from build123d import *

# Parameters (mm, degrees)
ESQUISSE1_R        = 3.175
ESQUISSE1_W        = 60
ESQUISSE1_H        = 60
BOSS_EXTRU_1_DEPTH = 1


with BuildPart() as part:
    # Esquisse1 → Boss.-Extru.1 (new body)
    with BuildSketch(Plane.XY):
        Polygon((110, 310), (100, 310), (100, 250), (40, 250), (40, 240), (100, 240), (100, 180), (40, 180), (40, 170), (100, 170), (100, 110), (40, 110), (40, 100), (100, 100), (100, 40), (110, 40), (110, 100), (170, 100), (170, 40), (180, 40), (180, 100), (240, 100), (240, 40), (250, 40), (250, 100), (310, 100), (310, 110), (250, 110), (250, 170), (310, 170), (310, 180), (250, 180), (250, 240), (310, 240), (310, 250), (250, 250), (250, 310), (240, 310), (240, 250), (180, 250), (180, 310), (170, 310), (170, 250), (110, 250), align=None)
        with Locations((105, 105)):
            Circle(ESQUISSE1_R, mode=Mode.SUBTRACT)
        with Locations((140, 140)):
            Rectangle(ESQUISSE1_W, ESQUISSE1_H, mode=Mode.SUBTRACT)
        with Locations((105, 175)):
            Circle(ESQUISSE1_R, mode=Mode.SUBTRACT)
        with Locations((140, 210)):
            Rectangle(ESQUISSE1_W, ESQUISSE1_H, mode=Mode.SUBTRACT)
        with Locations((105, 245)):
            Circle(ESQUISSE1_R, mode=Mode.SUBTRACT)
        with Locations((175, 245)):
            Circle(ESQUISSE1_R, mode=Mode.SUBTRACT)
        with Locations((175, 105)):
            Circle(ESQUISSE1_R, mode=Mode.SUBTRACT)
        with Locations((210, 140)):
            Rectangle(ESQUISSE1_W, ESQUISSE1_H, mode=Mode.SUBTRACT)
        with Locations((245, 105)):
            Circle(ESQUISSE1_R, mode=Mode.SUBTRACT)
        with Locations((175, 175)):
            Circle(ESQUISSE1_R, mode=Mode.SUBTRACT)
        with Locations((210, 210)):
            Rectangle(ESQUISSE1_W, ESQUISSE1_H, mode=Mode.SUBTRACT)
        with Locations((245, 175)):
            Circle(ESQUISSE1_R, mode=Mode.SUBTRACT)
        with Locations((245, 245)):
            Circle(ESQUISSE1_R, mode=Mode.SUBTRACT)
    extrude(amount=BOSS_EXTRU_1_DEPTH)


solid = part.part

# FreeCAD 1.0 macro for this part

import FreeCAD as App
import Part
import Sketcher

V = App.Vector


def add_polygon(sketch, points):
    """Adds a closed chain of lines whose ends are joined by coincident constraints."""
    first, n = sketch.GeometryCount, len(points)
    for a, b in zip(points, points[1:] + points[:1]):
        sketch.addGeometry(Part.LineSegment(App.Vector(*a, 0), App.Vector(*b, 0)), False)
    for i in range(n):
        sketch.addConstraint(Sketcher.Constraint("Coincident", first + i, 2, first + (i + 1) % n, 1))

doc = App.newDocument("Part")
body = doc.addObject("PartDesign::Body", "Body")

# Sketch on XY plane
sketch1 = body.newObject("Sketcher::SketchObject", "Sketch")
sketch1.AttachmentSupport = (doc.getObject("XY_Plane"), [""])
sketch1.MapMode = "FlatFace"
add_polygon(sketch1, [(110, 310), (100, 310), (100, 250), (40, 250), (40, 240), (100, 240), (100, 180), (40, 180), (40, 170), (100, 170), (100, 110), (40, 110), (40, 100), (100, 100), (100, 40), (110, 40), (110, 100), (170, 100), (170, 40), (180, 40), (180, 100), (240, 100), (240, 40), (250, 40), (250, 100), (310, 100), (310, 110), (250, 110), (250, 170), (310, 170), (310, 180), (250, 180), (250, 240), (310, 240), (310, 250), (250, 250), (250, 310), (240, 310), (240, 250), (180, 250), (180, 310), (170, 310), (170, 250), (110, 250)])  # lines 0-43
sketch1.addGeometry(Part.Circle(V(105, 105, 0), V(0, 0, 1), 3.175), False)  # 44
sketch1.addGeometry(Part.Circle(V(175, 105, 0), V(0, 0, 1), 3.175), False)  # 45
add_polygon(sketch1, [(170, 110), (110, 110), (110, 170), (170, 170)])  # lines 46-49
sketch1.addGeometry(Part.Circle(V(245, 105, 0), V(0, 0, 1), 3.175), False)  # 50
add_polygon(sketch1, [(240, 110), (180, 110), (180, 170), (240, 170)])  # lines 51-54
sketch1.addGeometry(Part.Circle(V(105, 175, 0), V(0, 0, 1), 3.175), False)  # 55
sketch1.addGeometry(Part.Circle(V(175, 175, 0), V(0, 0, 1), 3.175), False)  # 56
add_polygon(sketch1, [(170, 180), (110, 180), (110, 240), (170, 240)])  # lines 57-60
sketch1.addGeometry(Part.Circle(V(105, 245, 0), V(0, 0, 1), 3.175), False)  # 61
sketch1.addGeometry(Part.Circle(V(175, 245, 0), V(0, 0, 1), 3.175), False)  # 62
add_polygon(sketch1, [(240, 180), (180, 180), (180, 240), (240, 240)])  # lines 63-66
sketch1.addGeometry(Part.Circle(V(245, 175, 0), V(0, 0, 1), 3.175), False)  # 67
sketch1.addGeometry(Part.Circle(V(245, 245, 0), V(0, 0, 1), 3.175), False)  # 68
sketch1.addConstraint(Sketcher.Constraint("Horizontal", 0))
sketch1.addConstraint(Sketcher.Constraint("Vertical", 1))
sketch1.addConstraint(Sketcher.Constraint("Horizontal", 2))
sketch1.addConstraint(Sketcher.Constraint("Vertical", 3))
sketch1.addConstraint(Sketcher.Constraint("Horizontal", 4))
sketch1.addConstraint(Sketcher.Constraint("Vertical", 5))
sketch1.addConstraint(Sketcher.Constraint("Horizontal", 6))
sketch1.addConstraint(Sketcher.Constraint("Vertical", 7))
sketch1.addConstraint(Sketcher.Constraint("Horizontal", 8))
sketch1.addConstraint(Sketcher.Constraint("Vertical", 9))
sketch1.addConstraint(Sketcher.Constraint("Horizontal", 10))
sketch1.addConstraint(Sketcher.Constraint("Vertical", 11))
sketch1.addConstraint(Sketcher.Constraint("Horizontal", 12))
sketch1.addConstraint(Sketcher.Constraint("Vertical", 13))
sketch1.addConstraint(Sketcher.Constraint("Horizontal", 14))
sketch1.addConstraint(Sketcher.Constraint("Vertical", 15))
sketch1.addConstraint(Sketcher.Constraint("Horizontal", 16))
sketch1.addConstraint(Sketcher.Constraint("Vertical", 17))
sketch1.addConstraint(Sketcher.Constraint("Horizontal", 18))
sketch1.addConstraint(Sketcher.Constraint("Vertical", 19))
sketch1.addConstraint(Sketcher.Constraint("Horizontal", 20))
sketch1.addConstraint(Sketcher.Constraint("Vertical", 21))
sketch1.addConstraint(Sketcher.Constraint("Horizontal", 22))
sketch1.addConstraint(Sketcher.Constraint("Vertical", 23))
sketch1.addConstraint(Sketcher.Constraint("Horizontal", 24))
sketch1.addConstraint(Sketcher.Constraint("Vertical", 25))
sketch1.addConstraint(Sketcher.Constraint("Horizontal", 26))
sketch1.addConstraint(Sketcher.Constraint("Vertical", 27))
sketch1.addConstraint(Sketcher.Constraint("Horizontal", 28))
sketch1.addConstraint(Sketcher.Constraint("Vertical", 29))
sketch1.addConstraint(Sketcher.Constraint("Horizontal", 30))
sketch1.addConstraint(Sketcher.Constraint("Vertical", 31))
sketch1.addConstraint(Sketcher.Constraint("Horizontal", 32))
sketch1.addConstraint(Sketcher.Constraint("Vertical", 33))
sketch1.addConstraint(Sketcher.Constraint("Horizontal", 34))
sketch1.addConstraint(Sketcher.Constraint("Vertical", 35))
sketch1.addConstraint(Sketcher.Constraint("Horizontal", 36))
sketch1.addConstraint(Sketcher.Constraint("Vertical", 37))
sketch1.addConstraint(Sketcher.Constraint("Horizontal", 38))
sketch1.addConstraint(Sketcher.Constraint("Vertical", 39))
sketch1.addConstraint(Sketcher.Constraint("Horizontal", 40))
sketch1.addConstraint(Sketcher.Constraint("Vertical", 41))
sketch1.addConstraint(Sketcher.Constraint("Horizontal", 42))
sketch1.addConstraint(Sketcher.Constraint("Vertical", 43))
sketch1.addConstraint(Sketcher.Constraint("Horizontal", 46))
sketch1.addConstraint(Sketcher.Constraint("Vertical", 47))
sketch1.addConstraint(Sketcher.Constraint("Horizontal", 48))
sketch1.addConstraint(Sketcher.Constraint("Vertical", 49))
sketch1.addConstraint(Sketcher.Constraint("Horizontal", 51))
sketch1.addConstraint(Sketcher.Constraint("Vertical", 52))
sketch1.addConstraint(Sketcher.Constraint("Horizontal", 53))
sketch1.addConstraint(Sketcher.Constraint("Vertical", 54))
sketch1.addConstraint(Sketcher.Constraint("Horizontal", 57))
sketch1.addConstraint(Sketcher.Constraint("Vertical", 58))
sketch1.addConstraint(Sketcher.Constraint("Horizontal", 59))
sketch1.addConstraint(Sketcher.Constraint("Vertical", 60))
sketch1.addConstraint(Sketcher.Constraint("Horizontal", 63))
sketch1.addConstraint(Sketcher.Constraint("Vertical", 64))
sketch1.addConstraint(Sketcher.Constraint("Horizontal", 65))
sketch1.addConstraint(Sketcher.Constraint("Vertical", 66))
sketch1.addConstraint(Sketcher.Constraint("Equal", 44, 45))
sketch1.addConstraint(Sketcher.Constraint("Equal", 45, 50))
sketch1.addConstraint(Sketcher.Constraint("Equal", 50, 55))
sketch1.addConstraint(Sketcher.Constraint("Equal", 55, 56))
sketch1.addConstraint(Sketcher.Constraint("Equal", 56, 61))
sketch1.addConstraint(Sketcher.Constraint("Equal", 61, 62))
sketch1.addConstraint(Sketcher.Constraint("Equal", 62, 67))
sketch1.addConstraint(Sketcher.Constraint("Equal", 67, 68))
sketch1.addConstraint(Sketcher.Constraint("Horizontal", 44, 3, 45, 3))
sketch1.addConstraint(Sketcher.Constraint("Horizontal", 45, 3, 50, 3))
sketch1.addConstraint(Sketcher.Constraint("Horizontal", 55, 3, 56, 3))
sketch1.addConstraint(Sketcher.Constraint("Horizontal", 61, 3, 62, 3))
sketch1.addConstraint(Sketcher.Constraint("Horizontal", 56, 3, 67, 3))
sketch1.addConstraint(Sketcher.Constraint("Horizontal", 62, 3, 68, 3))
sketch1.addConstraint(Sketcher.Constraint("Horizontal", 12, 2, 15, 2))
sketch1.addConstraint(Sketcher.Constraint("Horizontal", 14, 2, 17, 2))
sketch1.addConstraint(Sketcher.Constraint("Horizontal", 16, 2, 19, 2))
sketch1.addConstraint(Sketcher.Constraint("Horizontal", 18, 2, 21, 2))
sketch1.addConstraint(Sketcher.Constraint("Horizontal", 20, 2, 23, 2))
sketch1.addConstraint(Sketcher.Constraint("Horizontal", 10, 2, 25, 2))
sketch1.addConstraint(Sketcher.Constraint("Horizontal", 8, 2, 27, 2))
sketch1.addConstraint(Sketcher.Constraint("Horizontal", 6, 2, 29, 2))
sketch1.addConstraint(Sketcher.Constraint("Horizontal", 4, 2, 31, 2))
sketch1.addConstraint(Sketcher.Constraint("Horizontal", 2, 2, 33, 2))
sketch1.addConstraint(Sketcher.Constraint("Horizontal", 0, 2, 35, 2))
sketch1.addConstraint(Sketcher.Constraint("Horizontal", 34, 2, 37, 2))
sketch1.addConstraint(Sketcher.Constraint("Horizontal", 36, 2, 39, 2))
sketch1.addConstraint(Sketcher.Constraint("Horizontal", 38, 2, 41, 2))
sketch1.addConstraint(Sketcher.Constraint("Horizontal", 26, 2, 46, 2))
sketch1.addConstraint(Sketcher.Constraint("Horizontal", 28, 2, 47, 2))
sketch1.addConstraint(Sketcher.Constraint("Horizontal", 49, 2, 51, 2))
sketch1.addConstraint(Sketcher.Constraint("Horizontal", 48, 2, 52, 2))
sketch1.addConstraint(Sketcher.Constraint("Horizontal", 30, 2, 57, 2))
sketch1.addConstraint(Sketcher.Constraint("Horizontal", 32, 2, 58, 2))
sketch1.addConstraint(Sketcher.Constraint("Horizontal", 60, 2, 63, 2))
sketch1.addConstraint(Sketcher.Constraint("Horizontal", 59, 2, 64, 2))
sketch1.addConstraint(Sketcher.Constraint("Vertical", 44, 3, 55, 3))
sketch1.addConstraint(Sketcher.Constraint("Vertical", 45, 3, 56, 3))
sketch1.addConstraint(Sketcher.Constraint("Vertical", 55, 3, 61, 3))
sketch1.addConstraint(Sketcher.Constraint("Vertical", 56, 3, 62, 3))
sketch1.addConstraint(Sketcher.Constraint("Vertical", 50, 3, 67, 3))
sketch1.addConstraint(Sketcher.Constraint("Vertical", 67, 3, 68, 3))
sketch1.addConstraint(Sketcher.Constraint("Vertical", 1, 2, 4, 2))
sketch1.addConstraint(Sketcher.Constraint("Vertical", 3, 2, 6, 2))
sketch1.addConstraint(Sketcher.Constraint("Vertical", 5, 2, 8, 2))
sketch1.addConstraint(Sketcher.Constraint("Vertical", 7, 2, 10, 2))
sketch1.addConstraint(Sketcher.Constraint("Vertical", 9, 2, 12, 2))
sketch1.addConstraint(Sketcher.Constraint("Vertical", 23, 2, 26, 2))
sketch1.addConstraint(Sketcher.Constraint("Vertical", 25, 2, 28, 2))
sketch1.addConstraint(Sketcher.Constraint("Vertical", 27, 2, 30, 2))
sketch1.addConstraint(Sketcher.Constraint("Vertical", 29, 2, 32, 2))
sketch1.addConstraint(Sketcher.Constraint("Vertical", 31, 2, 34, 2))
sketch1.addConstraint(Sketcher.Constraint("Vertical", 21, 2, 36, 2))
sketch1.addConstraint(Sketcher.Constraint("Vertical", 19, 2, 38, 2))
sketch1.addConstraint(Sketcher.Constraint("Vertical", 17, 2, 40, 2))
sketch1.addConstraint(Sketcher.Constraint("Vertical", 15, 2, 42, 2))
sketch1.addConstraint(Sketcher.Constraint("Vertical", 43, 2, 46, 2))
sketch1.addConstraint(Sketcher.Constraint("Vertical", 41, 2, 48, 2))
sketch1.addConstraint(Sketcher.Constraint("Vertical", 39, 2, 51, 2))
sketch1.addConstraint(Sketcher.Constraint("Vertical", 37, 2, 53, 2))
sketch1.addConstraint(Sketcher.Constraint("Vertical", 47, 2, 57, 2))
sketch1.addConstraint(Sketcher.Constraint("Vertical", 49, 2, 59, 2))
sketch1.addConstraint(Sketcher.Constraint("Vertical", 52, 2, 63, 2))
sketch1.addConstraint(Sketcher.Constraint("Vertical", 54, 2, 65, 2))
sketch1.addConstraint(Sketcher.Constraint("Equal", 12, 16))
sketch1.addConstraint(Sketcher.Constraint("Equal", 14, 18))
sketch1.addConstraint(Sketcher.Constraint("Equal", 16, 20))
sketch1.addConstraint(Sketcher.Constraint("Equal", 18, 22))
sketch1.addConstraint(Sketcher.Constraint("Equal", 20, 24))
sketch1.addConstraint(Sketcher.Constraint("Equal", 65, 1))
sketch1.addConstraint(Sketcher.Constraint("Equal", 40, 3))
sketch1.addConstraint(Sketcher.Constraint("Equal", 1, 5))
sketch1.addConstraint(Sketcher.Constraint("Equal", 3, 7))
sketch1.addConstraint(Sketcher.Constraint("Equal", 5, 9))
sketch1.addConstraint(Sketcher.Constraint("Equal", 7, 11))
sketch1.addConstraint(Sketcher.Constraint("Equal", 9, 13))
sketch1.addConstraint(Sketcher.Constraint("Diameter", 44, 6.35))
sketch1.addConstraint(Sketcher.Constraint("DistanceX", 0, 2, 0, 1, 10.0))
sketch1.addConstraint(Sketcher.Constraint("DistanceX", 2, 2, 2, 1, 60.0))
sketch1.addConstraint(Sketcher.Constraint("DistanceX", -1, 1, 44, 3, 105.0))
sketch1.addConstraint(Sketcher.Constraint("DistanceY", -1, 1, 44, 3, 105.0))
sketch1.addConstraint(Sketcher.Constraint("DistanceX", -1, 1, 45, 3, 175.0))
sketch1.addConstraint(Sketcher.Constraint("DistanceX", -1, 1, 50, 3, 245.0))
sketch1.addConstraint(Sketcher.Constraint("DistanceY", -1, 1, 55, 3, 175.0))
sketch1.addConstraint(Sketcher.Constraint("DistanceY", -1, 1, 61, 3, 245.0))
sketch1.addConstraint(Sketcher.Constraint("DistanceX", -1, 1, 0, 2, 100.0))
sketch1.addConstraint(Sketcher.Constraint("DistanceY", -1, 1, 0, 2, 310.0))
pad1 = body.newObject("PartDesign::Pad", "Pad")
pad1.Profile = sketch1
pad1.Length = 1

doc.recompute()
